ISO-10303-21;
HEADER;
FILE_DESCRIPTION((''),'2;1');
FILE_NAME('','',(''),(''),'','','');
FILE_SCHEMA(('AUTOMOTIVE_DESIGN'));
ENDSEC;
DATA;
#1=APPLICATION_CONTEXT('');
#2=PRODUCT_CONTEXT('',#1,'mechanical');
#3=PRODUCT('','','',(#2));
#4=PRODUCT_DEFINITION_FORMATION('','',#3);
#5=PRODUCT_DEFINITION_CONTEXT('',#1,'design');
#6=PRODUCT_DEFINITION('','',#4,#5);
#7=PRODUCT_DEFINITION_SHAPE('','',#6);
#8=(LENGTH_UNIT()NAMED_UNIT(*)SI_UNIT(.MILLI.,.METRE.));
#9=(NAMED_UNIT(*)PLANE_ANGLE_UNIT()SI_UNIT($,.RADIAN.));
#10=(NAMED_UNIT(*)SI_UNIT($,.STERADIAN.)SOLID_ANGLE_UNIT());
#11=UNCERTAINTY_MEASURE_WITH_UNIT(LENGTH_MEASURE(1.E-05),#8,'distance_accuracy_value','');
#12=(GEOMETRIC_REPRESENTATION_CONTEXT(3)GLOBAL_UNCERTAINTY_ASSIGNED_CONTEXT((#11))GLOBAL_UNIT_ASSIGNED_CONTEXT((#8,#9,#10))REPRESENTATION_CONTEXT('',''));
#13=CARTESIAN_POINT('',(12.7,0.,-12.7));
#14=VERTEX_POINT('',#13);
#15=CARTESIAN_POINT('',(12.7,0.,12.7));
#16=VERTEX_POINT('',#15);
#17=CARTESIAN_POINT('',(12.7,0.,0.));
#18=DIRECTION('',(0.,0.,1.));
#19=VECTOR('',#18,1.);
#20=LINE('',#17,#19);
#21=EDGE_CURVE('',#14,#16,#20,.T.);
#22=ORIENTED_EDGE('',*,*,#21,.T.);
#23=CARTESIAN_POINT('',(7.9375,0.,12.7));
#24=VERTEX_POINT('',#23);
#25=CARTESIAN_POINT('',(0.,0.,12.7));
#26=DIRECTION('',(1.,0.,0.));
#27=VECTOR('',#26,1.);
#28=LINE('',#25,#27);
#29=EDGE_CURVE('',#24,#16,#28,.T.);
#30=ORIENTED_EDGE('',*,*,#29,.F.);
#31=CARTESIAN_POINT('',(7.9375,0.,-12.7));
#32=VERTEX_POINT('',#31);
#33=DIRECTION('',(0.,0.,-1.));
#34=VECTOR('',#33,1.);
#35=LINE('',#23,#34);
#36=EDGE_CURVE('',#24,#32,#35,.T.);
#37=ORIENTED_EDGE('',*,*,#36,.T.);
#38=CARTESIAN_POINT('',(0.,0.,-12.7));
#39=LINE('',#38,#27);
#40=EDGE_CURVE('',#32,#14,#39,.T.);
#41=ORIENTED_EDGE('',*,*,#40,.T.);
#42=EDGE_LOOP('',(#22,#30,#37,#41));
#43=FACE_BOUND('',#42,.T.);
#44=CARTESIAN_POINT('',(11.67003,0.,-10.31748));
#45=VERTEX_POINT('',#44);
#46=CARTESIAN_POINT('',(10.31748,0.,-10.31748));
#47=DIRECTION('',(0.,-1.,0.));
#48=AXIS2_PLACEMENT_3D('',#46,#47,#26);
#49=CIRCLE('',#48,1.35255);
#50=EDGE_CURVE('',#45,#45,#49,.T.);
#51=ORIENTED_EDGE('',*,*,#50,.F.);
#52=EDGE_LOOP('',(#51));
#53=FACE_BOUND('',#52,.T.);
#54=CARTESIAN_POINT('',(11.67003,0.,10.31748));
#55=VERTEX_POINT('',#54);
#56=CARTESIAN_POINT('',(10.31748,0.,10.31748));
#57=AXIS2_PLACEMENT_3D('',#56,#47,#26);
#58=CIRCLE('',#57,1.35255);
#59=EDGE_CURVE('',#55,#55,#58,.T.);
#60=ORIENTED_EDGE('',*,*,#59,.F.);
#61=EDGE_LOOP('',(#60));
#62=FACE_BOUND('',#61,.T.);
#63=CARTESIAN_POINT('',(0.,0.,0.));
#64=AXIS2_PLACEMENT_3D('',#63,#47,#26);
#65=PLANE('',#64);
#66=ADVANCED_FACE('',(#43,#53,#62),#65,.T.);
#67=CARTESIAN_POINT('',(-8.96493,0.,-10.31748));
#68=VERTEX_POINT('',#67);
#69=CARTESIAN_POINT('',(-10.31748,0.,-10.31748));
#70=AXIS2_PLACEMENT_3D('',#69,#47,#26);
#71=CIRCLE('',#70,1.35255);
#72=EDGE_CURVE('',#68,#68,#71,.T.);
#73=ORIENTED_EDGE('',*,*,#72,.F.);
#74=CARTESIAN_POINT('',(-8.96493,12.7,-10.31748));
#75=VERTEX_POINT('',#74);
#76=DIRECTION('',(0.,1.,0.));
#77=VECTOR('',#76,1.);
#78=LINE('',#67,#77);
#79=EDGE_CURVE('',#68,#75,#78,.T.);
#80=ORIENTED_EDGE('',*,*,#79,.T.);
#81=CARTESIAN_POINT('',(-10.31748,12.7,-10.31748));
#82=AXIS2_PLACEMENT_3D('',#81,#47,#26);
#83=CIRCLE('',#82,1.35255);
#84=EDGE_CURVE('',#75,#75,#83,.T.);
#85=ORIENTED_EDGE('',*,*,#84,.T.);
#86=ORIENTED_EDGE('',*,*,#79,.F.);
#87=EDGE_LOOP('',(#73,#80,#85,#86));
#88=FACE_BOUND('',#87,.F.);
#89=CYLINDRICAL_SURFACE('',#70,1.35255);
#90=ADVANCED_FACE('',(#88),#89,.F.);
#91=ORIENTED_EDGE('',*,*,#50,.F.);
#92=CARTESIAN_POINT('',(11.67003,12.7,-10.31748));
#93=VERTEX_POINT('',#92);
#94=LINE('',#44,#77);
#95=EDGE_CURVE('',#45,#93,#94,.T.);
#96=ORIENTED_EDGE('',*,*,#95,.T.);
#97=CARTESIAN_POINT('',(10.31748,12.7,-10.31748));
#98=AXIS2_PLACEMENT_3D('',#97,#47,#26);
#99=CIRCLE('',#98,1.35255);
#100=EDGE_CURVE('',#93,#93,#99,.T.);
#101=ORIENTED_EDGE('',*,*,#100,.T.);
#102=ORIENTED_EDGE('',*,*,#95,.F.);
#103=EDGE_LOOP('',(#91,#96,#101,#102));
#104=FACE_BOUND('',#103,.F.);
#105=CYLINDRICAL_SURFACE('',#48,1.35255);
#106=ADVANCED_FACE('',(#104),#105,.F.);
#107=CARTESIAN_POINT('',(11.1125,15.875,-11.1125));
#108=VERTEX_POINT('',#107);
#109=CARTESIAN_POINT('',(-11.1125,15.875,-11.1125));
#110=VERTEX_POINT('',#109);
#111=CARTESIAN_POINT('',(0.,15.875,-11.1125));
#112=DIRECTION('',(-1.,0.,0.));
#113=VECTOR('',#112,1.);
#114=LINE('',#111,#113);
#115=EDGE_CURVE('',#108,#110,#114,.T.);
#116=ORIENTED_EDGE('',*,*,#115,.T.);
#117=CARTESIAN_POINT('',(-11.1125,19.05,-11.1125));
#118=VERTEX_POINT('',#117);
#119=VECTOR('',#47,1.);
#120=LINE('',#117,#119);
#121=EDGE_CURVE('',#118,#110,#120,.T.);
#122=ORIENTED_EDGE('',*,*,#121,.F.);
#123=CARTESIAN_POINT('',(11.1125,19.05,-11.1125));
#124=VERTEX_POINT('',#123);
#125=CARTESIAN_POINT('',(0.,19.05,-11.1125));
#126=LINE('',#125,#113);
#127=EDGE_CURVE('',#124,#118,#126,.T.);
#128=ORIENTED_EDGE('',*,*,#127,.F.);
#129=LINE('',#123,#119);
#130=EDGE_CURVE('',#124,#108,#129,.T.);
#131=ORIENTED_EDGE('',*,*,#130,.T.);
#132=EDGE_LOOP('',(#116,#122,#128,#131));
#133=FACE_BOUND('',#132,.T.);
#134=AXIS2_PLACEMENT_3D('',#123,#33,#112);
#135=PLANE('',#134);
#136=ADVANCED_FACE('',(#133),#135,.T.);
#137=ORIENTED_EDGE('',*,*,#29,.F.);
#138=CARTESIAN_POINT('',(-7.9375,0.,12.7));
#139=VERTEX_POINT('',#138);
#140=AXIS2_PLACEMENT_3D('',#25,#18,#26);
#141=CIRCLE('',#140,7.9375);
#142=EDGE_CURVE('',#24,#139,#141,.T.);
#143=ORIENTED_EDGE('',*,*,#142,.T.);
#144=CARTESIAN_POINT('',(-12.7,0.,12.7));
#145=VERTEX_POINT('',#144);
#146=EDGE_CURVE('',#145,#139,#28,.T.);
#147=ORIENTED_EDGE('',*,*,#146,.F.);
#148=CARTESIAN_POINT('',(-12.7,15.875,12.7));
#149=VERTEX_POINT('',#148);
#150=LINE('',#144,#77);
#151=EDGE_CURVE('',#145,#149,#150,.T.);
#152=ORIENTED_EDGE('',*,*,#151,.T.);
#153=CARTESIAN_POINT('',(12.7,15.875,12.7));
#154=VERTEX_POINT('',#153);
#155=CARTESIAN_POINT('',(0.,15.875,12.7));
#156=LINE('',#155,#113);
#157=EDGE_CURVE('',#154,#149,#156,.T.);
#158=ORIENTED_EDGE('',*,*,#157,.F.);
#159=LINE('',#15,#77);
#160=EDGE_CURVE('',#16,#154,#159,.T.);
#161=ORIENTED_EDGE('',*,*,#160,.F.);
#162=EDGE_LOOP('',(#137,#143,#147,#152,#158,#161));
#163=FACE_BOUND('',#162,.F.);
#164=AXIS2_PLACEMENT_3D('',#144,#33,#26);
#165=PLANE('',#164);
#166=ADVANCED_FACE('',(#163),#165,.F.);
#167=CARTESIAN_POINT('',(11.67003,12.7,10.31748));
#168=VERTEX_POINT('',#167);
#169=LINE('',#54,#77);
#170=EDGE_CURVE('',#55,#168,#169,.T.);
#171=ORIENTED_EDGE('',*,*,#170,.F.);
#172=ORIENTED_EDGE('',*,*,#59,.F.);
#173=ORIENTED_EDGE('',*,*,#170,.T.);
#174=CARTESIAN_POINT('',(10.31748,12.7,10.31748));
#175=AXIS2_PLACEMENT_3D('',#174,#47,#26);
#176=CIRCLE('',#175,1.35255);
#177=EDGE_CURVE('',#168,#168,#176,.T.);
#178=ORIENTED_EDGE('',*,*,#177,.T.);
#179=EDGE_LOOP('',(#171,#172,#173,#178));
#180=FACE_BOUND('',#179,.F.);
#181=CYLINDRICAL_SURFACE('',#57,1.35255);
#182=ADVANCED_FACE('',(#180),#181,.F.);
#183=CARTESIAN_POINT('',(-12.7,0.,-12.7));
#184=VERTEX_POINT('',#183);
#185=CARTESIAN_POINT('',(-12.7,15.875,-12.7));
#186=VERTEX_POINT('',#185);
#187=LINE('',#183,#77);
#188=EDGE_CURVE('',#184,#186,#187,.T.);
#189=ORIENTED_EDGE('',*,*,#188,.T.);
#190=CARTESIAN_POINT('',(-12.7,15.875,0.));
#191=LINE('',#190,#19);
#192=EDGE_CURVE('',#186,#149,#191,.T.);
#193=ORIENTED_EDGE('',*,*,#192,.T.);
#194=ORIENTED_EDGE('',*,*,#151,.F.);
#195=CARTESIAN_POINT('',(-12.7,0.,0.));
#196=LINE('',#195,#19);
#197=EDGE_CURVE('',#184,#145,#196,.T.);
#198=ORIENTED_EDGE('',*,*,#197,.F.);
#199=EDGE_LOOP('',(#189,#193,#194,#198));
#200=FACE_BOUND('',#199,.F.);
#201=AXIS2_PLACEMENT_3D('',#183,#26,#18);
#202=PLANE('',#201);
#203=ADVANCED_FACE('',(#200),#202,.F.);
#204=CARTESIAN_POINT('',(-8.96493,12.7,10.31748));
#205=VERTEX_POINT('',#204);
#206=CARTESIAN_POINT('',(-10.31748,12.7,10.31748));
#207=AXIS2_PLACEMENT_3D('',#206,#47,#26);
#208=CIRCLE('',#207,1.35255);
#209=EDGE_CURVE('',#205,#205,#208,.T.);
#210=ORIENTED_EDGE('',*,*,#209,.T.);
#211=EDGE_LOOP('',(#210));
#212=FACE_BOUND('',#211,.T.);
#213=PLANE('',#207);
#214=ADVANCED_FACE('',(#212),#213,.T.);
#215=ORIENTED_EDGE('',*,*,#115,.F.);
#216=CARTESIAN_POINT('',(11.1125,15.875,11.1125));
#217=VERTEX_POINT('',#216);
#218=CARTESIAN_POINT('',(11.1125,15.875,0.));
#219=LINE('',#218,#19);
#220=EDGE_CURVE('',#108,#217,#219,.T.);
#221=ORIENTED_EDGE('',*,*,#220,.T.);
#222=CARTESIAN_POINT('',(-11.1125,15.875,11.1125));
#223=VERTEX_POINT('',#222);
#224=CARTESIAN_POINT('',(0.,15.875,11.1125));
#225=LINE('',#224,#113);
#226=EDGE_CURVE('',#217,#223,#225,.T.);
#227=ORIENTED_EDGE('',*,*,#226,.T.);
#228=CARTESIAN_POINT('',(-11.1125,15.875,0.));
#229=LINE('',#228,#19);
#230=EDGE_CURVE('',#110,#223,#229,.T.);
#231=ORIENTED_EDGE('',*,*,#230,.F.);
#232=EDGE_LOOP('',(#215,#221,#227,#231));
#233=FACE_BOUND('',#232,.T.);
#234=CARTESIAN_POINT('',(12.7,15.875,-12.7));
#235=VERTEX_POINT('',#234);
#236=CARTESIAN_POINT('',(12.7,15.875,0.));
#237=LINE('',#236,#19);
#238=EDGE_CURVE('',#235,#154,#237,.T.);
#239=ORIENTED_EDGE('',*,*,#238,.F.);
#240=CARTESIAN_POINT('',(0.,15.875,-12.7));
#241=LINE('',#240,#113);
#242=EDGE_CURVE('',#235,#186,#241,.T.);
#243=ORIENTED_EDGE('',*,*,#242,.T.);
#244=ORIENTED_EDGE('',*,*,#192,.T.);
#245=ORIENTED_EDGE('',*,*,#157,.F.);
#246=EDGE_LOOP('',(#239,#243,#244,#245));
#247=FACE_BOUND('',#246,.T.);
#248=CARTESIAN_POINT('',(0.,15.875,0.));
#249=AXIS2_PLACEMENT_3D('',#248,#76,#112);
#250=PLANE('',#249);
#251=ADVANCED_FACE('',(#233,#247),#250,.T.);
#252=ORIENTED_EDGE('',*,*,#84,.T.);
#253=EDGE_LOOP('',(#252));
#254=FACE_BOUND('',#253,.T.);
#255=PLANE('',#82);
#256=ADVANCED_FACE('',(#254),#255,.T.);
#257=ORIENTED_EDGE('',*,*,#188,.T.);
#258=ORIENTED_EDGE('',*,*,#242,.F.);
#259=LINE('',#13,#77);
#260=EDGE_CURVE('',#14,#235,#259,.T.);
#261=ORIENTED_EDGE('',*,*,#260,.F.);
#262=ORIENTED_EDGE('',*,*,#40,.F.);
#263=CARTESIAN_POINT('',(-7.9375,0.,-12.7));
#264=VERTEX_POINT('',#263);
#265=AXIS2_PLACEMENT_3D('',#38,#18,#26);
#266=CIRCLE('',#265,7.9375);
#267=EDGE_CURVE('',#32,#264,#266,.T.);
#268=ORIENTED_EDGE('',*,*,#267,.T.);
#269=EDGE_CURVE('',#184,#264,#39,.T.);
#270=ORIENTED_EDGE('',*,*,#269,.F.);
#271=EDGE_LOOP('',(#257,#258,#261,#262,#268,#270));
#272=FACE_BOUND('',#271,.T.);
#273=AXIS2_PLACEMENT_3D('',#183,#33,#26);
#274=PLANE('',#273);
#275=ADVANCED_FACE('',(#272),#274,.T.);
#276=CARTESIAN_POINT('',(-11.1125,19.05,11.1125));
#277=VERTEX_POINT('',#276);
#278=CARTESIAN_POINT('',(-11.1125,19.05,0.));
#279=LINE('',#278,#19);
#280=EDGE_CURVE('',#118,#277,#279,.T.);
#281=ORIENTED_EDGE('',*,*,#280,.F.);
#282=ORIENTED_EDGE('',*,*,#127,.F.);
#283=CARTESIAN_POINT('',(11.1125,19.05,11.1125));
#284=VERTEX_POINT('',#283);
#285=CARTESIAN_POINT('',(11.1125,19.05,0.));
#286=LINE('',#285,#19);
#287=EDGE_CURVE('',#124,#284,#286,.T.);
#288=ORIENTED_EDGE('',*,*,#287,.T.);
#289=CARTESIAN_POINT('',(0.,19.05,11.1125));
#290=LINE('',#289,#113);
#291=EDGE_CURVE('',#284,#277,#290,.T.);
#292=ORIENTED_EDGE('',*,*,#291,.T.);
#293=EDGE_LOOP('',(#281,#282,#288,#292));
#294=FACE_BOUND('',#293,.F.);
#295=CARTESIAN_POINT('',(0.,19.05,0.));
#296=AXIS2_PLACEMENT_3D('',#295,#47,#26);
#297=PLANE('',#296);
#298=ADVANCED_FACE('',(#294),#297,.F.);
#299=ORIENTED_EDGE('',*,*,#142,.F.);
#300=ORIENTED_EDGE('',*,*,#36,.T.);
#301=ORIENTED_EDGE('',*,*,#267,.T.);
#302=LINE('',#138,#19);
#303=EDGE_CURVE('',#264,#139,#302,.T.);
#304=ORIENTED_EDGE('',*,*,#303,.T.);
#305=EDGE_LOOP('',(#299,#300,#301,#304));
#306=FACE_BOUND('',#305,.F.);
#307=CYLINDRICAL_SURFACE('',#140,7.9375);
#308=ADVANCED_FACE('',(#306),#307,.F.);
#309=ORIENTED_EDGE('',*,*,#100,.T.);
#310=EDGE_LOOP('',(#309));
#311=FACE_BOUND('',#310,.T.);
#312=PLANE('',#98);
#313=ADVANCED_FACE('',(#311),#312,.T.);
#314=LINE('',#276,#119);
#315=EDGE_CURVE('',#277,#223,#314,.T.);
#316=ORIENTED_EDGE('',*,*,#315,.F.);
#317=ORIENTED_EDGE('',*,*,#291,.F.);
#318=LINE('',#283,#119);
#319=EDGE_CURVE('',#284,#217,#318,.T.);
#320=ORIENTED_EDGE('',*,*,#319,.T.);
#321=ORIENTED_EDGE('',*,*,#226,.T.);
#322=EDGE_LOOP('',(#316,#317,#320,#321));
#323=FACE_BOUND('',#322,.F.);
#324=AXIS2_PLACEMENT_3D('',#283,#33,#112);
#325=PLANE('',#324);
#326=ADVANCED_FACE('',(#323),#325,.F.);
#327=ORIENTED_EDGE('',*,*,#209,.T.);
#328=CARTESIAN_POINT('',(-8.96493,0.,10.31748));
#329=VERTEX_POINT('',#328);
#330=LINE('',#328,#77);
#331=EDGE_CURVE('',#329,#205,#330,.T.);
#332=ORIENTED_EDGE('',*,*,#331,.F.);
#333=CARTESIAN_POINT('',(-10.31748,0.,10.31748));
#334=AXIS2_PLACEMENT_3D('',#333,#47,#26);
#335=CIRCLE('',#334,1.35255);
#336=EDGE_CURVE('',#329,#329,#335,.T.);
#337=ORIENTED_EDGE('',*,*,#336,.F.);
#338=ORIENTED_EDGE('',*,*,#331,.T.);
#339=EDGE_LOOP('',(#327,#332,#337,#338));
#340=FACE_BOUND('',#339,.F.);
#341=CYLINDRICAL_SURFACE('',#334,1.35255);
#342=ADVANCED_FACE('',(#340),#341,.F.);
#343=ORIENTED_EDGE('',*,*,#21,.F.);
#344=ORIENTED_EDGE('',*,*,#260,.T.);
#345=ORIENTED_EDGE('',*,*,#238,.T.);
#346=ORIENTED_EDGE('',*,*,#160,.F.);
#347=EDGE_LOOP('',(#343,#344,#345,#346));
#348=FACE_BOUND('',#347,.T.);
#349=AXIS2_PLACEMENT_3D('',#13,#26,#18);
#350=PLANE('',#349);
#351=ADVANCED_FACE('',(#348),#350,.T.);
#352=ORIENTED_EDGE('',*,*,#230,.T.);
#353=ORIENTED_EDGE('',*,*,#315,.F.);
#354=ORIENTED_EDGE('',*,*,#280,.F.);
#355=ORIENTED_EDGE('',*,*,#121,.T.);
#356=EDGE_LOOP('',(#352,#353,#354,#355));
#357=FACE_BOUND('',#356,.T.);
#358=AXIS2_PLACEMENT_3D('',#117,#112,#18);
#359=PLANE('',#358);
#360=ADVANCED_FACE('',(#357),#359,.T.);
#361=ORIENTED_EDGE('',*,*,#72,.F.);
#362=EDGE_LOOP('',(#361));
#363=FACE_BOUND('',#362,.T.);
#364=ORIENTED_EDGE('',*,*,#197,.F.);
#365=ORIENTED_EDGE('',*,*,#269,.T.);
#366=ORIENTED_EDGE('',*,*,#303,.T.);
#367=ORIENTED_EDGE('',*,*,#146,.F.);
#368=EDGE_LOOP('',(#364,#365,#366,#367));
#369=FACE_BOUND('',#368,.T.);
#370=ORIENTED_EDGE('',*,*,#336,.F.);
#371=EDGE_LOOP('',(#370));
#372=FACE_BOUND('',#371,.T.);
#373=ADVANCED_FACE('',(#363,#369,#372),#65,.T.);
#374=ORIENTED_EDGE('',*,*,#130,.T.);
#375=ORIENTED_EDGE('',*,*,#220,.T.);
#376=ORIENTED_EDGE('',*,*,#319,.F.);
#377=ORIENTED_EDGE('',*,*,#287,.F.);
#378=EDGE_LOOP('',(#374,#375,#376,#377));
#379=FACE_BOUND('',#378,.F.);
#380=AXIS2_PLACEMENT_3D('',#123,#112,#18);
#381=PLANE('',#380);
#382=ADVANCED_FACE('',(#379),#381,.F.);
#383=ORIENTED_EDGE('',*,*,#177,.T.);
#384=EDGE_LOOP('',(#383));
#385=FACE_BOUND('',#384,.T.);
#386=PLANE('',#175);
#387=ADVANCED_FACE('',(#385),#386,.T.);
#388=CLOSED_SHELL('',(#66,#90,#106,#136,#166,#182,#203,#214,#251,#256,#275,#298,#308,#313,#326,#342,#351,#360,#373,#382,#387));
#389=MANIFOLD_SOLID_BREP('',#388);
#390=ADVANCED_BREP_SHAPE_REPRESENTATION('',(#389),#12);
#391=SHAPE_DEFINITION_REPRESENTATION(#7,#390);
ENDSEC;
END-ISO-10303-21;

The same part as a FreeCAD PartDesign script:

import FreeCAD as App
import Part
import Sketcher
from FreeCAD import Vector
Q = App.Units.Quantity


def add_polygon(sketch, points):
    """Adds a closed chain of lines whose ends are joined by coincident constraints."""
    first, n = sketch.GeometryCount, len(points)
    for a, b in zip(points, points[1:] + points[:1]):
        sketch.addGeometry(Part.LineSegment(App.Vector(*a, 0), App.Vector(*b, 0)), False)
    for i in range(n):
        sketch.addConstraint(Sketcher.Constraint("Coincident", first + i, 2, first + (i + 1) % n, 1))

doc = App.newDocument("Part")
body = doc.addObject("PartDesign::Body", "Body")

# Sketch on XZ plane
sketch1 = body.newObject("Sketcher::SketchObject", "Sketch")
sketch1.AttachmentSupport = (doc.getObject("XZ_Plane"), [""])
sketch1.MapMode = "FlatFace"
add_polygon(sketch1, [(-12.7, 12.7), (-12.7, -12.7), (12.7, -12.7), (12.7, 12.7)])  # lines 0-3
sketch1.addConstraint(Sketcher.Constraint("Vertical", 0))
sketch1.addConstraint(Sketcher.Constraint("Horizontal", 1))
sketch1.addConstraint(Sketcher.Constraint("Vertical", 2))
sketch1.addConstraint(Sketcher.Constraint("Horizontal", 3))
sketch1.addConstraint(Sketcher.Constraint("Symmetric", 0, 2, 2, 2, -1, 1))
sketch1.addConstraint(Sketcher.Constraint("Equal", 3, 0))
sketch1.addConstraint(Sketcher.Constraint("DistanceX", 1, 1, 1, 2, Q("1 in")))
pad1 = body.newObject("PartDesign::Pad", "Pad")
pad1.Profile = sketch1
pad1.Length = Q("0.75 in")
pad1.Reversed = True

# Sketch on XY plane
sketch2 = body.newObject("Sketcher::SketchObject", "Sketch001")
sketch2.AttachmentSupport = (doc.getObject("XY_Plane"), [""])
sketch2.MapMode = "FlatFace"
sketch2.AttachmentOffset = App.Placement(Vector(0, 0, 0.5 * 25.4), App.Rotation())
sketch2.addGeometry(Part.Circle(Vector(0, 0, 0), Vector(0, 0, 1), 7.9375), False)
sketch2.addConstraint(Sketcher.Constraint("Coincident", 0, 3, -1, 1))
sketch2.addConstraint(Sketcher.Constraint("Diameter", 0, Q("0.625 in")))
pocket1 = body.newObject("PartDesign::Pocket", "Pocket")
pocket1.Profile = sketch2
pocket1.Type = "ThroughAll"

# Sketch on XZ plane
sketch3 = body.newObject("Sketcher::SketchObject", "Sketch002")
sketch3.AttachmentSupport = (doc.getObject("XZ_Plane"), [""])
sketch3.MapMode = "FlatFace"
sketch3.AttachmentOffset = App.Placement(Vector(0, 0, -0.75 * 25.4), App.Rotation())
add_polygon(sketch3, [(12.7, 12.7), (12.7, -12.7), (-12.7, -12.7), (-12.7, 12.7)])  # lines 0-3
add_polygon(sketch3, [(-11.1125, -11.1125), (11.1125, -11.1125), (11.1125, 11.1125), (-11.1125, 11.1125)])  # lines 4-7
sketch3.addConstraint(Sketcher.Constraint("Vertical", 0))
sketch3.addConstraint(Sketcher.Constraint("Horizontal", 1))
sketch3.addConstraint(Sketcher.Constraint("Vertical", 2))
sketch3.addConstraint(Sketcher.Constraint("Horizontal", 3))
sketch3.addConstraint(Sketcher.Constraint("Horizontal", 4))
sketch3.addConstraint(Sketcher.Constraint("Vertical", 5))
sketch3.addConstraint(Sketcher.Constraint("Horizontal", 6))
sketch3.addConstraint(Sketcher.Constraint("Vertical", 7))
sketch3.addConstraint(Sketcher.Constraint("Symmetric", 0, 2, 2, 2, -1, 1))
sketch3.addConstraint(Sketcher.Constraint("Symmetric", 4, 2, 6, 2, -1, 1))
sketch3.addConstraint(Sketcher.Constraint("Equal", 3, 0))
sketch3.addConstraint(Sketcher.Constraint("Equal", 6, 5))
sketch3.addConstraint(Sketcher.Constraint("DistanceX", 1, 2, 1, 1, Q("1 in")))
sketch3.addConstraint(Sketcher.Constraint("DistanceX", 4, 1, 4, 2, Q("0.875 in")))
pocket2 = body.newObject("PartDesign::Pocket", "Pocket001")
pocket2.Profile = sketch3
pocket2.Length = Q("0.125 in")
pocket2.Reversed = True

# Sketch on XZ plane
sketch4 = body.newObject("Sketcher::SketchObject", "Sketch003")
sketch4.AttachmentSupport = (doc.getObject("XZ_Plane"), [""])
sketch4.MapMode = "FlatFace"
sketch4.addGeometry(Part.Circle(Vector(-10.31748, 10.31748, 0), Vector(0, 0, 1), 1.35255), False)
sketch4.addGeometry(Part.Circle(Vector(-10.31748, -10.31748, 0), Vector(0, 0, 1), 1.35255), False)
sketch4.addGeometry(Part.Circle(Vector(10.31748, 10.31748, 0), Vector(0, 0, 1), 1.35255), False)
sketch4.addGeometry(Part.Circle(Vector(10.31748, -10.31748, 0), Vector(0, 0, 1), 1.35255), False)
sketch4.addConstraint(Sketcher.Constraint("Equal", 0, 1))
sketch4.addConstraint(Sketcher.Constraint("Equal", 1, 2))
sketch4.addConstraint(Sketcher.Constraint("Equal", 2, 3))
sketch4.addConstraint(Sketcher.Constraint("Symmetric", 1, 3, 2, 3, -1, 1))
sketch4.addConstraint(Sketcher.Constraint("Symmetric", 0, 3, 3, 3, -1, 1))
sketch4.addConstraint(Sketcher.Constraint("Symmetric", 0, 3, 2, 3, -2))
sketch4.addConstraint(Sketcher.Constraint("Diameter", 0, Q("0.1065 in")))
sketch4.addConstraint(Sketcher.Constraint("DistanceX", 0, 3, -1, 1, Q("0.4062 in")))
sketch4.addConstraint(Sketcher.Constraint("DistanceY", -1, 1, 0, 3, Q("0.4062 in")))
pocket3 = body.newObject("PartDesign::Pocket", "Pocket002")
pocket3.Profile = sketch4
pocket3.Length = Q("0.5 in")

doc.recompute()
